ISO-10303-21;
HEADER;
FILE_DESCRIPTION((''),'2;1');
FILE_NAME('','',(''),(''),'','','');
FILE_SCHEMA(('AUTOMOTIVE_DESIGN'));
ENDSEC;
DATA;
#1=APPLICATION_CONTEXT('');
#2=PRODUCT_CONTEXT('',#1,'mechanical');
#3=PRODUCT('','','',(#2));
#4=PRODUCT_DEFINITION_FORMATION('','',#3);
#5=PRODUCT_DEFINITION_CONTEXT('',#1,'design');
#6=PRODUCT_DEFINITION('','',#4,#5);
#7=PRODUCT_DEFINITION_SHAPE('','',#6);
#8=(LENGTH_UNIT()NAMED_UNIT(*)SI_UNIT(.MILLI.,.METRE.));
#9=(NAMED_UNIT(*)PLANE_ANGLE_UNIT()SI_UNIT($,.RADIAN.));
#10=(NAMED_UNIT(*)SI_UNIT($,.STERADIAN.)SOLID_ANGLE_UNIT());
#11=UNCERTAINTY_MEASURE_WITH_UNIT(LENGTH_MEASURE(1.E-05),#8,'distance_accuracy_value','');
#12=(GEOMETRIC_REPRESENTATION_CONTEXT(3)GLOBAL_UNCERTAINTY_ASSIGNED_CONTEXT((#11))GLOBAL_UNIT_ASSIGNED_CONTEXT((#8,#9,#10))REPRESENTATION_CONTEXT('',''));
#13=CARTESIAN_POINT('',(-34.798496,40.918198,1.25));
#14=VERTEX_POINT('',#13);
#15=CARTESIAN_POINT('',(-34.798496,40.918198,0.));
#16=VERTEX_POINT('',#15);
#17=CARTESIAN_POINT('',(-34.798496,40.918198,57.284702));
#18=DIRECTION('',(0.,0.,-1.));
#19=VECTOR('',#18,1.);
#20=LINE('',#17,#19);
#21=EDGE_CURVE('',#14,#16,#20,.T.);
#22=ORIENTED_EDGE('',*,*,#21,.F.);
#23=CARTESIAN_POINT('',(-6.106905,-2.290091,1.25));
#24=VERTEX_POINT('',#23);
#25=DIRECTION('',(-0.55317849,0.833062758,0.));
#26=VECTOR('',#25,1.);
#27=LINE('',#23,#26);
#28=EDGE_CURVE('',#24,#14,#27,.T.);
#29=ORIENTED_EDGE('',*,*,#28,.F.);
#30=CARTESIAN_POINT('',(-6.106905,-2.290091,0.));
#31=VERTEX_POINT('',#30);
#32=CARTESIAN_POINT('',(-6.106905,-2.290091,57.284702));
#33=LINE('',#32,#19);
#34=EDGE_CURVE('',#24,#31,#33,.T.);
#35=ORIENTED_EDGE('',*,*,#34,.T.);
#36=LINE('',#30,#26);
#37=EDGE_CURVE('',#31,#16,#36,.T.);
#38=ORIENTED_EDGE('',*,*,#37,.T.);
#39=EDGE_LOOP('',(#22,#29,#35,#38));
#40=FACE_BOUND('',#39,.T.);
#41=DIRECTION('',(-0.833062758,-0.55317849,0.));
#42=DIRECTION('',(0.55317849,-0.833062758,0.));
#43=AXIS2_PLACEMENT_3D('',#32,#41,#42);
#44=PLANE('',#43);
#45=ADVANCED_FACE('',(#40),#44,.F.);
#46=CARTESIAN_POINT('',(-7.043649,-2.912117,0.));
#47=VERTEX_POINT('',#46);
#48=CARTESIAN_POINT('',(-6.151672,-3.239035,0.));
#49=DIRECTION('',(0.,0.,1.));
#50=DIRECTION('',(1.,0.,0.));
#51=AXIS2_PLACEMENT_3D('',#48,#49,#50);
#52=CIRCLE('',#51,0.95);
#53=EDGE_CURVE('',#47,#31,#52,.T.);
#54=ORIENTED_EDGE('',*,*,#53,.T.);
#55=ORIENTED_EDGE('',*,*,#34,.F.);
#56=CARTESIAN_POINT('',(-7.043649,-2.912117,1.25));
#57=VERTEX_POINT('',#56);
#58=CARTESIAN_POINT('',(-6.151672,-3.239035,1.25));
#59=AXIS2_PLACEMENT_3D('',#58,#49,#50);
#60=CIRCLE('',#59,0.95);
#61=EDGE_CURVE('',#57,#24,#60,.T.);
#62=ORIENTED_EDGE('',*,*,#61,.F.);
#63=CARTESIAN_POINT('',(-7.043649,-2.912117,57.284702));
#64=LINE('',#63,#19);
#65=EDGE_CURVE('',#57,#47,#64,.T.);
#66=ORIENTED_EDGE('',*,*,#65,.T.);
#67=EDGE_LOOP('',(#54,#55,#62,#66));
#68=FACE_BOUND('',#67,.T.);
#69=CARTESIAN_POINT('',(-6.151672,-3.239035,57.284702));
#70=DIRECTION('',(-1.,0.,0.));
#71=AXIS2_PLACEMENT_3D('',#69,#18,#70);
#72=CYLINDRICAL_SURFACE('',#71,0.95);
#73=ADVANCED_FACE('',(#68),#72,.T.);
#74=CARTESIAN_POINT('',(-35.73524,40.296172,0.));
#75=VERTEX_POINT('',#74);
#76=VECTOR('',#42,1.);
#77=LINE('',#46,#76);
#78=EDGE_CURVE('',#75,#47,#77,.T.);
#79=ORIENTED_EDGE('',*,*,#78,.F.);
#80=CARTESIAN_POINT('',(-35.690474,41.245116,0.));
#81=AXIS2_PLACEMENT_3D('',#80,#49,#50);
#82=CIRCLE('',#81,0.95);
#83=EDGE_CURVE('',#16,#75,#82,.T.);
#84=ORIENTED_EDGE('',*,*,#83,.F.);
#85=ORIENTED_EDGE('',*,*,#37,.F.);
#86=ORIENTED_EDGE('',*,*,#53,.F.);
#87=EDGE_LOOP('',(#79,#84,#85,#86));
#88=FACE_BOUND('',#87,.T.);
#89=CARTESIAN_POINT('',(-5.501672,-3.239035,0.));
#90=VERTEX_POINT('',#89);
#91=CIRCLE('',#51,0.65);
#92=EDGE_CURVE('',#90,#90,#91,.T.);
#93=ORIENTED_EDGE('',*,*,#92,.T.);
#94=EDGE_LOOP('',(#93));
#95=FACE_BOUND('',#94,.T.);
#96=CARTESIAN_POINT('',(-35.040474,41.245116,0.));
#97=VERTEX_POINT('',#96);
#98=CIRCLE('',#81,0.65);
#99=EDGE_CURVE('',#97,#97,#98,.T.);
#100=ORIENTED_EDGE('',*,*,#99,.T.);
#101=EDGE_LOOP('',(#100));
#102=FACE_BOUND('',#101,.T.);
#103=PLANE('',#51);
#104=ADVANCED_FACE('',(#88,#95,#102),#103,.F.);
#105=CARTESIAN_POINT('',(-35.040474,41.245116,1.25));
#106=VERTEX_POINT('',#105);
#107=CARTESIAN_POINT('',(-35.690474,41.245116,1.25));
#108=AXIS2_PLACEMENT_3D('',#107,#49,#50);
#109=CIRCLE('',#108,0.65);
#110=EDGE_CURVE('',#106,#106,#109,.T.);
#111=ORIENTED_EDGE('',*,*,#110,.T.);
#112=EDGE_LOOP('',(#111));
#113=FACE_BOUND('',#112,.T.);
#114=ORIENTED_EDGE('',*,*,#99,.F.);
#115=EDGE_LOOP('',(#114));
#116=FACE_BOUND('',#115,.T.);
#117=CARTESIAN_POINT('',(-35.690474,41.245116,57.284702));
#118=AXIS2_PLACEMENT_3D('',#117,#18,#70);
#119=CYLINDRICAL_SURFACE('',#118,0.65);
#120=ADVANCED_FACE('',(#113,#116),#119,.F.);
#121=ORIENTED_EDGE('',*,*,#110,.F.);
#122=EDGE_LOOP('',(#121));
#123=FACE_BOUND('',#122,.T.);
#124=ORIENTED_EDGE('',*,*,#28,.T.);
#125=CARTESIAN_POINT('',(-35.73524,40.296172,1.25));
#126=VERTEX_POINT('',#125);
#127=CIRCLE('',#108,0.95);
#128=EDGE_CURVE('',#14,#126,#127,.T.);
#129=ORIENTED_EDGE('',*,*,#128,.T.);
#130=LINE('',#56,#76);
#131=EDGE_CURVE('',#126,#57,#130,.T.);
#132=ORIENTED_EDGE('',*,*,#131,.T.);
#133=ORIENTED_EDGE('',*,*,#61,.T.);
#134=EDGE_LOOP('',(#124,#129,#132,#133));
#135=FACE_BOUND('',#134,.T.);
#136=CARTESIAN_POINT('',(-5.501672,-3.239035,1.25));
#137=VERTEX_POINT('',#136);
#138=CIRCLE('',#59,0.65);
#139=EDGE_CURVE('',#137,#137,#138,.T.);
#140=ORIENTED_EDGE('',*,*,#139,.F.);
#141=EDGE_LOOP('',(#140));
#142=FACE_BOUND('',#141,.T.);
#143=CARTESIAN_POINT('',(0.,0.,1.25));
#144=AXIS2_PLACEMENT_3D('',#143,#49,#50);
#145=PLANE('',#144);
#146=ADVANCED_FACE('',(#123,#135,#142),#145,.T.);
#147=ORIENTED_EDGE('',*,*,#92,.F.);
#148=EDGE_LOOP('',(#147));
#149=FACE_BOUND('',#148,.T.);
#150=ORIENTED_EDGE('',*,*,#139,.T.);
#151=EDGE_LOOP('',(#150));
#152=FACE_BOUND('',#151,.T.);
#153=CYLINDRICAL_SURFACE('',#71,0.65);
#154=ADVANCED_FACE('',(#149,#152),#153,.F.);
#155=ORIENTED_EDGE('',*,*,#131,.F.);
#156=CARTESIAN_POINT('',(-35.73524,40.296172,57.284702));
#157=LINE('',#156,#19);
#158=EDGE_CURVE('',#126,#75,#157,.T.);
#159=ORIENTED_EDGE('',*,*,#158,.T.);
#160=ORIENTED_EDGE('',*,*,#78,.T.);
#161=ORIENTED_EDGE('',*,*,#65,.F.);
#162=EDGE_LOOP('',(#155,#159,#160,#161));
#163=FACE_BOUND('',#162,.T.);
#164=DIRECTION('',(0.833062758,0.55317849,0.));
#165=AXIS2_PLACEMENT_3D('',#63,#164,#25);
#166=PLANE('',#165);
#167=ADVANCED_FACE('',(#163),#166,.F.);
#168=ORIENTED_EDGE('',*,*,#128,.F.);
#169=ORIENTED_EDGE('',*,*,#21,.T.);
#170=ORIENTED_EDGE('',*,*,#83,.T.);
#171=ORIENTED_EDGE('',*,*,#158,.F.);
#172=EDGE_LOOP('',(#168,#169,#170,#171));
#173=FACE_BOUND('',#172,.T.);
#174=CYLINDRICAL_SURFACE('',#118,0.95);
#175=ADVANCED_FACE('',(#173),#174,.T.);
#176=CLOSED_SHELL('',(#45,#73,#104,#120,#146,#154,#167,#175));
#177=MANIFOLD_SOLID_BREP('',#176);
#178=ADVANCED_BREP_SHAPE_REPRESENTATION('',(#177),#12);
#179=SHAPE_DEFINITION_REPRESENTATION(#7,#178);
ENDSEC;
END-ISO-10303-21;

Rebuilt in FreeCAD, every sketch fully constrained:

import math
import FreeCAD as App
import Part
import Sketcher
from FreeCAD import Vector
Q = App.Units.Quantity

doc = App.newDocument("Part")
params = doc.addObject("Spreadsheet::Sheet", "Params")
for row, (alias, value) in enumerate([
    ("sketch1_diameter", "1.3 mm"),
    ("sketch1_radius", "0.95 mm"),
    ("pad1_length", "1.25 mm"),
], start=1):
    params.set(f"A{row}", alias)
    params.set(f"B{row}", "=" + value)
    params.setAlias(f"B{row}", alias)

body = doc.addObject("PartDesign::Body", "Body")

# Sketch on XY plane
sketch1 = body.newObject("Sketcher::SketchObject", "Sketch")
sketch1.AttachmentSupport = (doc.getObject("XY_Plane"), [""])
sketch1.MapMode = "FlatFace"
sketch1.addGeometry(Part.LineSegment(Vector(-35.73524, 40.296172, 0), Vector(-7.043649, -2.912117, 0)), False)
sketch1.addGeometry(Part.ArcOfCircle(Part.Circle(Vector(-6.151672, -3.239035, 0), Vector(0, 0, 1), 0.95), math.radians(159.871616), math.radians(447.299074)), False)
sketch1.addGeometry(Part.LineSegment(Vector(-6.106905, -2.290091, 0), Vector(-34.798496, 40.918198, 0)), False)
sketch1.addGeometry(Part.ArcOfCircle(Part.Circle(Vector(-35.690474, 41.245116, 0), Vector(0, 0, 1), 0.95), math.radians(-20.128384), math.radians(267.299074)), False)
sketch1.addGeometry(Part.Circle(Vector(-6.151672, -3.239035, 0), Vector(0, 0, 1), 0.65), False)
sketch1.addGeometry(Part.Circle(Vector(-35.690474, 41.245116, 0), Vector(0, 0, 1), 0.65), False)
sketch1.addConstraint(Sketcher.Constraint("Coincident", 0, 2, 1, 1))
sketch1.addConstraint(Sketcher.Constraint("Coincident", 1, 2, 2, 1))
sketch1.addConstraint(Sketcher.Constraint("Coincident", 2, 2, 3, 1))
sketch1.addConstraint(Sketcher.Constraint("Coincident", 3, 2, 0, 1))
sketch1.addConstraint(Sketcher.Constraint("Coincident", 4, 3, 1, 3))
sketch1.addConstraint(Sketcher.Constraint("Coincident", 5, 3, 3, 3))
sketch1.addConstraint(Sketcher.Constraint("Equal", 1, 3))
sketch1.addConstraint(Sketcher.Constraint("Equal", 4, 5))
sketch1.addConstraint(Sketcher.Constraint("Parallel", 0, 2))
sketch1.addConstraint(Sketcher.Constraint("Equal", 0, 2))
sketch1.addConstraint(Sketcher.Constraint("Diameter", 4, Q("1.3 mm")))
sketch1.addConstraint(Sketcher.Constraint("Radius", 1, Q("0.95 mm")))
sketch1.addConstraint(Sketcher.Constraint("DistanceX", 3, 3, 1, 3, Q("29.538802 mm")))
sketch1.addConstraint(Sketcher.Constraint("DistanceX", 1, 3, -1, 1, Q("6.151672 mm")))
sketch1.addConstraint(Sketcher.Constraint("DistanceX", 0, 2, -1, 1, Q("7.043649 mm")))
sketch1.addConstraint(Sketcher.Constraint("DistanceY", 1, 2, -1, 1, Q("2.290091 mm")))
sketch1.addConstraint(Sketcher.Constraint("DistanceX", 3, 2, -1, 1, Q("35.73524 mm")))
sketch1.addConstraint(Sketcher.Constraint("DistanceY", -1, 1, 3, 2, Q("40.296172 mm")))
sketch1.setExpression("Constraints[10]", "Params.sketch1_diameter")
sketch1.setExpression("Constraints[11]", "Params.sketch1_radius")
pad1 = body.newObject("PartDesign::Pad", "Pad")
pad1.Profile = sketch1
pad1.setExpression("Length", "Params.pad1_length")

doc.recompute()
